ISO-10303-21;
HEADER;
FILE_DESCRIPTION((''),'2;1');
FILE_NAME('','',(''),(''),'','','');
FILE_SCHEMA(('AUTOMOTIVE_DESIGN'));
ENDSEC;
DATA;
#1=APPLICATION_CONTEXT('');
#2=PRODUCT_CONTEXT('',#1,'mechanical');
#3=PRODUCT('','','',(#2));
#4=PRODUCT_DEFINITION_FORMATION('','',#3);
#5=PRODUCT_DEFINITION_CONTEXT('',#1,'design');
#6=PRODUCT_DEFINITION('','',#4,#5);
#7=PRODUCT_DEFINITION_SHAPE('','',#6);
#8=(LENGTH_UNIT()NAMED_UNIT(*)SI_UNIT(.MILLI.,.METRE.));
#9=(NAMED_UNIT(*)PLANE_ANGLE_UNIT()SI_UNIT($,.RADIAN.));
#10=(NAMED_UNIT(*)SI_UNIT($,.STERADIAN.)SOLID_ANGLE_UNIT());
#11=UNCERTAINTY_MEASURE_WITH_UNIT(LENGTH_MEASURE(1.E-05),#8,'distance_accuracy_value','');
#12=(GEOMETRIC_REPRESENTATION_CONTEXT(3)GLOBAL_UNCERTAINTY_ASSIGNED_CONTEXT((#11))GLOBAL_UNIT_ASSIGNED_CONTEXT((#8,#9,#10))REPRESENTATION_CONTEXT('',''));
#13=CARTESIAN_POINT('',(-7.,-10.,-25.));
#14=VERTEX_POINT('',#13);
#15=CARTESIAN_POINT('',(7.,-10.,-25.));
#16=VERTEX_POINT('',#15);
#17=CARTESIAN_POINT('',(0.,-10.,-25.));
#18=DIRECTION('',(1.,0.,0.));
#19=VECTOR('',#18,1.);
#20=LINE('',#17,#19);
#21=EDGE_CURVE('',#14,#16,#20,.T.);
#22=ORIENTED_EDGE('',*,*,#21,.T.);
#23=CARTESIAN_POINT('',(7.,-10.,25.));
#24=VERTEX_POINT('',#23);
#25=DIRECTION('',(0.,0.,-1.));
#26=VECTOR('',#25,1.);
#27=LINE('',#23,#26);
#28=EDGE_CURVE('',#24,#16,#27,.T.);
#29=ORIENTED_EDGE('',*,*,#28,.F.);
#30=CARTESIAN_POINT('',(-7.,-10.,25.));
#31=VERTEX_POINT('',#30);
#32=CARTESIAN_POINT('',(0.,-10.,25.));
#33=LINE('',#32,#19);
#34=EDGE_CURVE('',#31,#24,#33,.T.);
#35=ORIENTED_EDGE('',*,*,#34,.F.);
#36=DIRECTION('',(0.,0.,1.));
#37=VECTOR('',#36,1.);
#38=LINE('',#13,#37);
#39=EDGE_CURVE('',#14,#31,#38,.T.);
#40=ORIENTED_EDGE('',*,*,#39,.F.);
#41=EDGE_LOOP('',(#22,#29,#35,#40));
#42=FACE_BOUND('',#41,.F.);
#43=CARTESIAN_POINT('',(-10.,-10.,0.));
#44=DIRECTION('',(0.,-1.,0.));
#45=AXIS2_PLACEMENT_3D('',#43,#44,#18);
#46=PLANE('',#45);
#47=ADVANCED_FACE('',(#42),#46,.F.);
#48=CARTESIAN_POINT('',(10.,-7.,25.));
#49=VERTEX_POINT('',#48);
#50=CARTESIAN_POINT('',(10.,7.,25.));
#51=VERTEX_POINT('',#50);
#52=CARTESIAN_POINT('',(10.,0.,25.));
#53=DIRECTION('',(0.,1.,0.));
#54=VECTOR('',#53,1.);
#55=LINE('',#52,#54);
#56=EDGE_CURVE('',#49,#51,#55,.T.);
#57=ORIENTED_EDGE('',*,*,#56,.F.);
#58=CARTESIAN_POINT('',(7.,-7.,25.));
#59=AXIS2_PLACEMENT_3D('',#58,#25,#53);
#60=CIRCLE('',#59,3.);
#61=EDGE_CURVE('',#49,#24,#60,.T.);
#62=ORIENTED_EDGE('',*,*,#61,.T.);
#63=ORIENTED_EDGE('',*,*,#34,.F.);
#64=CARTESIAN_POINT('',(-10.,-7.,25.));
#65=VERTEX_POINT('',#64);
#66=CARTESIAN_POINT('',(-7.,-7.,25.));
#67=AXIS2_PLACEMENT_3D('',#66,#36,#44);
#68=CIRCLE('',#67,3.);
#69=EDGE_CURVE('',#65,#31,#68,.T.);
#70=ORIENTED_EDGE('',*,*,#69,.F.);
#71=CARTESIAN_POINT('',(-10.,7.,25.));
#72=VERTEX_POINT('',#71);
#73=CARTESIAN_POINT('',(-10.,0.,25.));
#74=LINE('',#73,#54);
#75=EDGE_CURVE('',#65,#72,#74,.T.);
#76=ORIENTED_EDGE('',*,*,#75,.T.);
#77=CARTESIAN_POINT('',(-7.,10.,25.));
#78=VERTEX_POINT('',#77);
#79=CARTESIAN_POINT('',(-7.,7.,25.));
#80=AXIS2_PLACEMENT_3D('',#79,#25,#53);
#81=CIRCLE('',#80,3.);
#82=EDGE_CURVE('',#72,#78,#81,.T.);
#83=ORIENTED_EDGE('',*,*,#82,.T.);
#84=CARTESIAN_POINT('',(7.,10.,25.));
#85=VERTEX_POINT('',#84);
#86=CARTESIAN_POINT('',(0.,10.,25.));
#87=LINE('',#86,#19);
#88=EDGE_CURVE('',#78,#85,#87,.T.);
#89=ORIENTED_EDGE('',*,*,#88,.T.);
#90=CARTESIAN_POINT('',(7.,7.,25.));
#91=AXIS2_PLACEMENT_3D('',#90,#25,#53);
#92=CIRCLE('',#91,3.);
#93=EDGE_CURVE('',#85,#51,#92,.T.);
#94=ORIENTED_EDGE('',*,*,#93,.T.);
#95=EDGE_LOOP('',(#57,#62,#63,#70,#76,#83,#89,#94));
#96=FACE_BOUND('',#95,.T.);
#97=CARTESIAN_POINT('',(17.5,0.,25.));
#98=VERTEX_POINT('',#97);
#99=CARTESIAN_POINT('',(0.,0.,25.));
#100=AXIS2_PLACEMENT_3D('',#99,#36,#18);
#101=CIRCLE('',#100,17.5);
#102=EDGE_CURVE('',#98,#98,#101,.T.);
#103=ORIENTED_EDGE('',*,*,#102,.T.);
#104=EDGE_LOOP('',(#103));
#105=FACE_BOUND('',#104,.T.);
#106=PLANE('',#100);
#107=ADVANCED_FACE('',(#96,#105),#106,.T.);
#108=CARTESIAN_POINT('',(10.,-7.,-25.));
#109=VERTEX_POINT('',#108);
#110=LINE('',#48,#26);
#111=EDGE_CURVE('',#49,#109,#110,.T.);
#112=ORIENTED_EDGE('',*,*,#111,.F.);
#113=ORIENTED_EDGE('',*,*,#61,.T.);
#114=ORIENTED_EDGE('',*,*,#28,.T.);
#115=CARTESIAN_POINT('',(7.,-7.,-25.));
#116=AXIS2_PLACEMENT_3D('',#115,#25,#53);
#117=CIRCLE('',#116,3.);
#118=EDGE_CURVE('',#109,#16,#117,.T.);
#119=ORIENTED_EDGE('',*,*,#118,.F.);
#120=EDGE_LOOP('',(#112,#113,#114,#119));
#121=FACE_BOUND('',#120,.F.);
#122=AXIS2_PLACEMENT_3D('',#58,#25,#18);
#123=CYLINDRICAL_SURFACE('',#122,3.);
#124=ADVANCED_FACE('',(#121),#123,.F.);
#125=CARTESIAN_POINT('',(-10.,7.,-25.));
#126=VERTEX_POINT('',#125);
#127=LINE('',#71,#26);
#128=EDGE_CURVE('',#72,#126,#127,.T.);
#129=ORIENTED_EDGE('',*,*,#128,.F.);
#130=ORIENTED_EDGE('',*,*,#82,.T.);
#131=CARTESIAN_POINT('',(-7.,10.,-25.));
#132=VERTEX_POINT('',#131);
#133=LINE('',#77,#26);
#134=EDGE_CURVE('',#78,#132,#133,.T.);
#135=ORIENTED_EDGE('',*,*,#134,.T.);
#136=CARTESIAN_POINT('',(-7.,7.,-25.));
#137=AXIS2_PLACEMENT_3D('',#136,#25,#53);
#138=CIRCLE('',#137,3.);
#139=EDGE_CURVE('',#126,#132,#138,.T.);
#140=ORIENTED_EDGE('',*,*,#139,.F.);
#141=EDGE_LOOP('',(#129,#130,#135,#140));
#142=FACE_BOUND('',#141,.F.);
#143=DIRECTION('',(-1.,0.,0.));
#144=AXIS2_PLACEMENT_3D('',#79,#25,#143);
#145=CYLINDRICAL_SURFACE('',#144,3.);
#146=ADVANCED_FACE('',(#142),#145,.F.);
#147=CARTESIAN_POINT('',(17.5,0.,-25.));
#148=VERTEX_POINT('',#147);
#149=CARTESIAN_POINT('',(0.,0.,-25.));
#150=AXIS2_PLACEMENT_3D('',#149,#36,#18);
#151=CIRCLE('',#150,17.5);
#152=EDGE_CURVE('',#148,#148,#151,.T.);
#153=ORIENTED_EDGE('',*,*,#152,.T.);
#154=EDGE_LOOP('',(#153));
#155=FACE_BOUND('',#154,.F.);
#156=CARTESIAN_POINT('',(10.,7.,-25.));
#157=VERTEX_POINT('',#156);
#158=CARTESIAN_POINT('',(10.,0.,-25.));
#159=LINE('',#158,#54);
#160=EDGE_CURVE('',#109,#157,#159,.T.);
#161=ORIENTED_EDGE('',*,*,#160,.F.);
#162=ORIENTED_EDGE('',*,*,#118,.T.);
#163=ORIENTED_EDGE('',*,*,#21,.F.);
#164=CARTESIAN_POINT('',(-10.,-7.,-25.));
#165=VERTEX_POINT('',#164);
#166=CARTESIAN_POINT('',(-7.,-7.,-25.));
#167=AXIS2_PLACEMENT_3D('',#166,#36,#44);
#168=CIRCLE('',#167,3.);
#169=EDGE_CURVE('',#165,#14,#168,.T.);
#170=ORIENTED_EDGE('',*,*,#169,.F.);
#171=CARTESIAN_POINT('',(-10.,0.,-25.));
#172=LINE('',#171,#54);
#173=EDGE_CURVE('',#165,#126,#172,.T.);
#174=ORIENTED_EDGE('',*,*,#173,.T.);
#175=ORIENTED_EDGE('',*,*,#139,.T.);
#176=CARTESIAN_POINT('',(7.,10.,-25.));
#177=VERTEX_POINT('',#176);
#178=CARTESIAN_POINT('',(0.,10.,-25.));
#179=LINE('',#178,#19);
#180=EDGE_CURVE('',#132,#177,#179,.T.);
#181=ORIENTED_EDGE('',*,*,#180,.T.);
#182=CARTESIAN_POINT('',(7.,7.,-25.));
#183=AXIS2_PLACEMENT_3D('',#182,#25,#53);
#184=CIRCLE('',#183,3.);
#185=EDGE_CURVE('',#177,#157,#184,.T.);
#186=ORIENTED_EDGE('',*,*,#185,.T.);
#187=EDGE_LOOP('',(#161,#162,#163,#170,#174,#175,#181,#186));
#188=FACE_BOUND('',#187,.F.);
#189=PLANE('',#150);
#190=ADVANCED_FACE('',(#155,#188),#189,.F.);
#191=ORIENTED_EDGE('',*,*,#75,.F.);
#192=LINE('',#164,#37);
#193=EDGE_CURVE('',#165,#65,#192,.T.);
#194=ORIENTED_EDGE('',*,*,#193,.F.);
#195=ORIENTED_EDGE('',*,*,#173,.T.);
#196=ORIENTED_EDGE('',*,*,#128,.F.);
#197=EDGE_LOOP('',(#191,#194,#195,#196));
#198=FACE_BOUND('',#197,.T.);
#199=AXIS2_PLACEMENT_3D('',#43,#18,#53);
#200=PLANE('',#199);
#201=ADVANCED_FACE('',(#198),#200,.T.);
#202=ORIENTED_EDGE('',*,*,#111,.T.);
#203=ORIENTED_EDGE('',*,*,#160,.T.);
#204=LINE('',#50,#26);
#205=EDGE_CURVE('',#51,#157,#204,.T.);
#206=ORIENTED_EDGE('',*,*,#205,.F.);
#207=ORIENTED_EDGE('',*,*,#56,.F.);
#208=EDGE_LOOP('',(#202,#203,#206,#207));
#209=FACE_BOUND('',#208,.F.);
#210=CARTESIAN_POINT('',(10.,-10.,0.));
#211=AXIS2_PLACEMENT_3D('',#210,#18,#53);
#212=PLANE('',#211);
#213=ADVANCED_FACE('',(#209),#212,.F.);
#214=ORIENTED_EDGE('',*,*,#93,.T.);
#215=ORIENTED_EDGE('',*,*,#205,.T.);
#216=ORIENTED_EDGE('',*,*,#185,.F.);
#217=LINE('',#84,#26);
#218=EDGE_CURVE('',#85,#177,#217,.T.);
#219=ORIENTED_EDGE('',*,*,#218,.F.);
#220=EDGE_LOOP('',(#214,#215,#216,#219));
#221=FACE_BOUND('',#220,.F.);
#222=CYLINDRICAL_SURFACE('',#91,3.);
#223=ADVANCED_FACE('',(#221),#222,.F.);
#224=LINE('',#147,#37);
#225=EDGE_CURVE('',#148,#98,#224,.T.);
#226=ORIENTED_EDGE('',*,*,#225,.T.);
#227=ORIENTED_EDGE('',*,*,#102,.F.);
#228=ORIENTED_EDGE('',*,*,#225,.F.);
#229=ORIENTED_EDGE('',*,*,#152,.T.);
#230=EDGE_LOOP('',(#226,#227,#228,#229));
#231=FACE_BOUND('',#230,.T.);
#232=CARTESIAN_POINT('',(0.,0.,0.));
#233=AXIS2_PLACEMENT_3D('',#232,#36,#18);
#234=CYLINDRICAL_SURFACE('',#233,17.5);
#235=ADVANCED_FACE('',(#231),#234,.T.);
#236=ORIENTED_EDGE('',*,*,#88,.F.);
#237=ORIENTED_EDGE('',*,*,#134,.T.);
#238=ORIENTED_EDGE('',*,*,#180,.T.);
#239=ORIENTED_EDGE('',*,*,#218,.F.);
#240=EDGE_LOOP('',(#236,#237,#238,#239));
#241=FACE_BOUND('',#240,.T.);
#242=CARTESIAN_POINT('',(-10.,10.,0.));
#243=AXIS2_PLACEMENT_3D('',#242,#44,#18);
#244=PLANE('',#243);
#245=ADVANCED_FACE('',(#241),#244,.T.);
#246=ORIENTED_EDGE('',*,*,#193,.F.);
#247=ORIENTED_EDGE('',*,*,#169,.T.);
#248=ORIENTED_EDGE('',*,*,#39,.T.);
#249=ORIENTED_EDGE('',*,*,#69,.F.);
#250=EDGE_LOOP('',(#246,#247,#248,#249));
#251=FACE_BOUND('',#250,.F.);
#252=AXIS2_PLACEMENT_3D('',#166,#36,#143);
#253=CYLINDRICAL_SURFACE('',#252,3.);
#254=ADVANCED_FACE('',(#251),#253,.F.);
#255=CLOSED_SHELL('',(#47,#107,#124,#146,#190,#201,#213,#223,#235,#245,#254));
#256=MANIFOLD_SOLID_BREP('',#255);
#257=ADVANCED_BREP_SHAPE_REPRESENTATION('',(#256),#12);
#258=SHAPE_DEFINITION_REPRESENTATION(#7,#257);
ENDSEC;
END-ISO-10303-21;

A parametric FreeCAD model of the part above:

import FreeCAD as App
import Part
import Sketcher
Q = App.Units.Quantity


def edges_at(feature, points):
    """Names of the edges that pass closest to the given points."""
    edges = feature.Shape.Edges
    near = lambda p: min(range(len(edges)), key=lambda i: edges[i].distToShape(Part.Vertex(*p))[0])
    return sorted({f"Edge{near(p) + 1}" for p in points})


def add_polygon(sketch, points):
    """Adds a closed chain of lines whose ends are joined by coincident constraints."""
    first, n = sketch.GeometryCount, len(points)
    for a, b in zip(points, points[1:] + points[:1]):
        sketch.addGeometry(Part.LineSegment(App.Vector(*a, 0), App.Vector(*b, 0)), False)
    for i in range(n):
        sketch.addConstraint(Sketcher.Constraint("Coincident", first + i, 2, first + (i + 1) % n, 1))

doc = App.newDocument("Part")
body = doc.addObject("PartDesign::Body", "Body")

sketch1 = doc.addObject("Sketcher::SketchObject", "Sketch")
body.addObject(sketch1)
sketch1.AttachmentSupport = (doc.XY_Plane, [""])
sketch1.MapMode = "FlatFace"
sketch1.addGeometry(Part.Circle(App.Vector(0, 0, 0), App.Vector(0, 0, 1), 17.5), False)
add_polygon(sketch1, [(10, -10), (-10, -10), (-10, 10), (10, 10)])
sketch1.addConstraint(Sketcher.Constraint("Horizontal", 1))
sketch1.addConstraint(Sketcher.Constraint("Vertical", 2))
sketch1.addConstraint(Sketcher.Constraint("Horizontal", 3))
sketch1.addConstraint(Sketcher.Constraint("Vertical", 4))
sketch1.addConstraint(Sketcher.Constraint("Coincident", 0, 3, -1, 1))
sketch1.addConstraint(Sketcher.Constraint("Symmetric", 1, 2, 3, 2, -1, 1))
sketch1.addConstraint(Sketcher.Constraint("Equal", 3, 2))
sketch1.addConstraint(Sketcher.Constraint("Diameter", 0, Q("35 mm")))
sketch1.addConstraint(Sketcher.Constraint("DistanceX", 1, 2, 1, 1, Q("20 mm")))
pad1 = doc.addObject("PartDesign::Pad", "Pad")
body.addObject(pad1)
pad1.Profile = sketch1
pad1.Type = "TwoLengths"
pad1.Length = 25
pad1.Length2 = 25
doc.recompute()

fillet = doc.addObject("PartDesign::Fillet", "Fillet")
body.addObject(fillet)
fillet.Base = (pad1, edges_at(pad1, [
    (-10, 10, 0),
    (10, 10, 0),
    (-10, -10, 0),
    (10, -10, 0),
]))
fillet.Radius = 3

doc.recompute()
